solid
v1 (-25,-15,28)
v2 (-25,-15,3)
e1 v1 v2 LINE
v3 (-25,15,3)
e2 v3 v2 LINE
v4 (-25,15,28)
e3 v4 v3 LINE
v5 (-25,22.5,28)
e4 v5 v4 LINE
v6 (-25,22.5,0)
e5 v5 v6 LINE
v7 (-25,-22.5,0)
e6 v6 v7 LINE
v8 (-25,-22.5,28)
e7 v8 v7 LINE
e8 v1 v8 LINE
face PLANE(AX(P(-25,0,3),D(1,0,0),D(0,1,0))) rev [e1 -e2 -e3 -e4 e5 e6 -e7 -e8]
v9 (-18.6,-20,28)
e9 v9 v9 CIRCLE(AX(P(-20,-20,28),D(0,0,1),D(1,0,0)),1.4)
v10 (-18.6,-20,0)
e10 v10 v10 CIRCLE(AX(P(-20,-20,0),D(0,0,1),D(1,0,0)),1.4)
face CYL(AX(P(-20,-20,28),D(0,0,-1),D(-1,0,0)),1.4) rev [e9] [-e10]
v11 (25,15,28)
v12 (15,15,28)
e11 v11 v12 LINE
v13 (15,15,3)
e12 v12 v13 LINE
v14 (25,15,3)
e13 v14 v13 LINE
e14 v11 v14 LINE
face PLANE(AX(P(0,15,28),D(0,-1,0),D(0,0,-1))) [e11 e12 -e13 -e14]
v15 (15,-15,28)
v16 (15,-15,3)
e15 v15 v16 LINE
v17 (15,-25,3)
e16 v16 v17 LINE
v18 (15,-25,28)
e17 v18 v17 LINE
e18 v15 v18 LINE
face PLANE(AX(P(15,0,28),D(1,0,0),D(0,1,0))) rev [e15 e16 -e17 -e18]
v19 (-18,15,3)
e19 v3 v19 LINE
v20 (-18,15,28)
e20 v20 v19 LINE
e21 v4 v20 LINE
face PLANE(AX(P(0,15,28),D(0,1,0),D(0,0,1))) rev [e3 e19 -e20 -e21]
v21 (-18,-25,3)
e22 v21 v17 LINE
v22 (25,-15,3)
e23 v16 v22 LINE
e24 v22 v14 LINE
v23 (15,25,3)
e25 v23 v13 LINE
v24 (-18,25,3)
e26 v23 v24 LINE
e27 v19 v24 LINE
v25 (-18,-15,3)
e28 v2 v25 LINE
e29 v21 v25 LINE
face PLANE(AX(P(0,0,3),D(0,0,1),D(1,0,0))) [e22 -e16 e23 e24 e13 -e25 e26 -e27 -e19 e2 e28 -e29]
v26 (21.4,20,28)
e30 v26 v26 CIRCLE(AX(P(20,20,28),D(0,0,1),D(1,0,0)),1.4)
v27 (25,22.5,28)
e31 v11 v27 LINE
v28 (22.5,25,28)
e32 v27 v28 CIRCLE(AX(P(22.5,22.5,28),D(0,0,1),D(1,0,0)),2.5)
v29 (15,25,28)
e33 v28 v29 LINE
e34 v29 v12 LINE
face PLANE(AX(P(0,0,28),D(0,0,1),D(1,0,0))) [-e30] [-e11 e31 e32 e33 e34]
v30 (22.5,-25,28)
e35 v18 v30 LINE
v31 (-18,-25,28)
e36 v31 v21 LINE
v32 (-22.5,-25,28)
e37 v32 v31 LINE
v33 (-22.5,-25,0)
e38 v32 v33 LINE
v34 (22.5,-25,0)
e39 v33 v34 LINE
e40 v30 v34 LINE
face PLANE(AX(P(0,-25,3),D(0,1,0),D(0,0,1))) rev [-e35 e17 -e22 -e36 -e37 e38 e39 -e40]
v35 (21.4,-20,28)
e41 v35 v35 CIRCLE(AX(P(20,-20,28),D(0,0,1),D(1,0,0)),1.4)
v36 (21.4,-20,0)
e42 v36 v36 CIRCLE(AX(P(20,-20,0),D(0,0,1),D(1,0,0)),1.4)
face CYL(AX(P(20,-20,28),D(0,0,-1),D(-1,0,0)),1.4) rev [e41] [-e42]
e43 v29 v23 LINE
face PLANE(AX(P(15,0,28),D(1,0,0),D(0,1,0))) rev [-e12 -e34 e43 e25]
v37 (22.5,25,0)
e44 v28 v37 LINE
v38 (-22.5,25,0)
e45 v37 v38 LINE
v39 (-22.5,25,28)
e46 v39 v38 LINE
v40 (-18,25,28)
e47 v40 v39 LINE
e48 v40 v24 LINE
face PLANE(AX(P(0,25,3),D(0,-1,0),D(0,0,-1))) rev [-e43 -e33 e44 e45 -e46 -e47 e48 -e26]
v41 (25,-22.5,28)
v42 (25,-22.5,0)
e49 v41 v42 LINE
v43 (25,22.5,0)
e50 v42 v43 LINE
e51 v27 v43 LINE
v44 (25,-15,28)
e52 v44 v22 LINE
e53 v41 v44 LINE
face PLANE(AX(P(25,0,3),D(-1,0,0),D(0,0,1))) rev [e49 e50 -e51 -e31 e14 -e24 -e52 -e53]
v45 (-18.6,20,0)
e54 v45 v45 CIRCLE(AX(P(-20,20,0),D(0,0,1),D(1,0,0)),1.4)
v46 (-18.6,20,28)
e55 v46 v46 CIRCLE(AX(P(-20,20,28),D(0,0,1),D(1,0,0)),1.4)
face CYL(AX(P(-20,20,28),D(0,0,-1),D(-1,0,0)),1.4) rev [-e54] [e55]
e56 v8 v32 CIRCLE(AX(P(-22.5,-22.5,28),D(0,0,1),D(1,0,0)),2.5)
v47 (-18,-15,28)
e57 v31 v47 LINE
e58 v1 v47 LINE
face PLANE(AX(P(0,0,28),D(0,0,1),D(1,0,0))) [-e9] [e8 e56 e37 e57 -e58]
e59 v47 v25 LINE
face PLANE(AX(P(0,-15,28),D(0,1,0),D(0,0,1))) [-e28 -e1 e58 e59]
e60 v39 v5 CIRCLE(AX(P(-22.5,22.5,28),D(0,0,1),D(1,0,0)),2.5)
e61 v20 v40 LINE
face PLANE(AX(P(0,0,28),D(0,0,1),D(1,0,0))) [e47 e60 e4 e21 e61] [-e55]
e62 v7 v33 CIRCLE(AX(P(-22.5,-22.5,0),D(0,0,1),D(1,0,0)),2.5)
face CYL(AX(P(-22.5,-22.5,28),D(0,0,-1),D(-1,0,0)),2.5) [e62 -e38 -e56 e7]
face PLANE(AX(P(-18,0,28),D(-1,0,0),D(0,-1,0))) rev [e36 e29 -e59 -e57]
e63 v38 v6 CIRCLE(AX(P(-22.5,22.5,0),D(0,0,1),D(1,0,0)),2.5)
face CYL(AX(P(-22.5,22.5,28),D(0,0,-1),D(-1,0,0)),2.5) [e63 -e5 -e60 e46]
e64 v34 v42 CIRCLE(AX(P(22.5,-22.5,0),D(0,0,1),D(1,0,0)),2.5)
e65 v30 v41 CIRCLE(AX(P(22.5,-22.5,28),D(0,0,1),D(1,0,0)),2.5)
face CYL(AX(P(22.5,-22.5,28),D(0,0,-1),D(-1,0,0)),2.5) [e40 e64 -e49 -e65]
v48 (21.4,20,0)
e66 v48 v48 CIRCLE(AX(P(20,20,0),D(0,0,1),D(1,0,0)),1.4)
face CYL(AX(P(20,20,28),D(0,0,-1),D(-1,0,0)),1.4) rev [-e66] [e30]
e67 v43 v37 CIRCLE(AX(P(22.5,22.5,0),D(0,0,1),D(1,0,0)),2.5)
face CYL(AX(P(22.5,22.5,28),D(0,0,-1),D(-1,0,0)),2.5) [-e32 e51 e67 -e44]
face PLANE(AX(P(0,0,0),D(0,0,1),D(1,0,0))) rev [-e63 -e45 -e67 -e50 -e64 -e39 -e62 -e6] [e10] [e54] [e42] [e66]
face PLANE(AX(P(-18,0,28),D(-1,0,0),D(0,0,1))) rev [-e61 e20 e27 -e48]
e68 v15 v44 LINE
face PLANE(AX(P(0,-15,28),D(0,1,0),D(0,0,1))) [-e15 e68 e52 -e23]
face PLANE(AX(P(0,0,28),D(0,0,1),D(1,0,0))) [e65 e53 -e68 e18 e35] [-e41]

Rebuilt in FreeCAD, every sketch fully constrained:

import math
import FreeCAD as App
import Part
import Sketcher
Q = App.Units.Quantity

doc = App.newDocument("Part")
params = doc.addObject("Spreadsheet::Sheet", "Params")
for row, (alias, value) in enumerate([
    ("sketch1_width", "7 mm"),
    ("sketch1_width2", "33 mm"),
    ("sketch1_width3", "10 mm"),
    ("sketch1_height", "24 mm"),
    ("sketch1_height2", "6 mm"),
    ("pad1_length", "3 mm"),
    ("sketch2_diameter", "2.8 mm"),
    ("sketch2_radius", "2.5 mm"),
    ("sketch2_width", "7 mm"),
    ("sketch2_width2", "10 mm"),
    ("pad2_length", "28 mm"),
], start=1):
    params.set(f"A{row}", alias)
    params.set(f"B{row}", "=" + value)
    params.setAlias(f"B{row}", alias)

body = doc.addObject("PartDesign::Body", "Body")

# Sketch on XY plane
sketch1 = body.newObject("Sketcher::SketchObject", "Sketch")
sketch1.AttachmentSupport = (doc.getObject("XY_Plane"), [""])
sketch1.MapMode = "FlatFace"
sketch1.addGeometry(Part.LineSegment(App.Vector(-25, 15, 0), App.Vector(-25, -9, 0)), False)
sketch1.addGeometry(Part.LineSegment(App.Vector(-25, -9, 0), App.Vector(-25, -15, 0)), False)
sketch1.addGeometry(Part.LineSegment(App.Vector(-25, -15, 0), App.Vector(-18, -15, 0)), False)
sketch1.addGeometry(Part.LineSegment(App.Vector(-18, -15, 0), App.Vector(-18, -25, 0)), False)
sketch1.addGeometry(Part.LineSegment(App.Vector(-18, -25, 0), App.Vector(15, -25, 0)), False)
sketch1.addGeometry(Part.LineSegment(App.Vector(15, -25, 0), App.Vector(15, -15, 0)), False)
sketch1.addGeometry(Part.LineSegment(App.Vector(15, -15, 0), App.Vector(25, -15, 0)), False)
sketch1.addGeometry(Part.LineSegment(App.Vector(25, -15, 0), App.Vector(25, -9, 0)), False)
sketch1.addGeometry(Part.LineSegment(App.Vector(25, -9, 0), App.Vector(25, 9, 0)), False)
sketch1.addGeometry(Part.LineSegment(App.Vector(25, 9, 0), App.Vector(25, 15, 0)), False)
sketch1.addGeometry(Part.LineSegment(App.Vector(25, 15, 0), App.Vector(15, 15, 0)), False)
sketch1.addGeometry(Part.LineSegment(App.Vector(15, 15, 0), App.Vector(15, 25, 0)), False)
sketch1.addGeometry(Part.LineSegment(App.Vector(15, 25, 0), App.Vector(-18, 25, 0)), False)
sketch1.addGeometry(Part.LineSegment(App.Vector(-18, 25, 0), App.Vector(-18, 15, 0)), False)
sketch1.addGeometry(Part.LineSegment(App.Vector(-18, 15, 0), App.Vector(-25, 15, 0)), False)
sketch1.addConstraint(Sketcher.Constraint("Coincident", 0, 2, 1, 1))
sketch1.addConstraint(Sketcher.Constraint("Coincident", 1, 2, 2, 1))
sketch1.addConstraint(Sketcher.Constraint("Coincident", 2, 2, 3, 1))
sketch1.addConstraint(Sketcher.Constraint("Coincident", 3, 2, 4, 1))
sketch1.addConstraint(Sketcher.Constraint("Coincident", 4, 2, 5, 1))
sketch1.addConstraint(Sketcher.Constraint("Coincident", 5, 2, 6, 1))
sketch1.addConstraint(Sketcher.Constraint("Coincident", 6, 2, 7, 1))
sketch1.addConstraint(Sketcher.Constraint("Coincident", 7, 2, 8, 1))
sketch1.addConstraint(Sketcher.Constraint("Coincident", 8, 2, 9, 1))
sketch1.addConstraint(Sketcher.Constraint("Coincident", 9, 2, 10, 1))
sketch1.addConstraint(Sketcher.Constraint("Coincident", 10, 2, 11, 1))
sketch1.addConstraint(Sketcher.Constraint("Coincident", 11, 2, 12, 1))
sketch1.addConstraint(Sketcher.Constraint("Coincident", 12, 2, 13, 1))
sketch1.addConstraint(Sketcher.Constraint("Coincident", 13, 2, 14, 1))
sketch1.addConstraint(Sketcher.Constraint("Coincident", 14, 2, 0, 1))
sketch1.addConstraint(Sketcher.Constraint("Vertical", 0))
sketch1.addConstraint(Sketcher.Constraint("Vertical", 1))
sketch1.addConstraint(Sketcher.Constraint("Horizontal", 2))
sketch1.addConstraint(Sketcher.Constraint("Vertical", 3))
sketch1.addConstraint(Sketcher.Constraint("Horizontal", 4))
sketch1.addConstraint(Sketcher.Constraint("Vertical", 5))
sketch1.addConstraint(Sketcher.Constraint("Horizontal", 6))
sketch1.addConstraint(Sketcher.Constraint("Vertical", 7))
sketch1.addConstraint(Sketcher.Constraint("Vertical", 8))
sketch1.addConstraint(Sketcher.Constraint("Vertical", 9))
sketch1.addConstraint(Sketcher.Constraint("Horizontal", 10))
sketch1.addConstraint(Sketcher.Constraint("Vertical", 11))
sketch1.addConstraint(Sketcher.Constraint("Horizontal", 12))
sketch1.addConstraint(Sketcher.Constraint("Vertical", 13))
sketch1.addConstraint(Sketcher.Constraint("Horizontal", 14))
sketch1.addConstraint(Sketcher.Constraint("Symmetric", 0, 2, 8, 2, -1, 1))
sketch1.addConstraint(Sketcher.Constraint("Symmetric", 5, 2, 10, 2, -1))
sketch1.addConstraint(Sketcher.Constraint("Symmetric", 3, 2, 12, 2, -1))
sketch1.addConstraint(Sketcher.Constraint("Horizontal", 2, 2, 5, 2))
sketch1.addConstraint(Sketcher.Constraint("Horizontal", 0, 2, 7, 2))
sketch1.addConstraint(Sketcher.Constraint("Horizontal", 10, 2, 13, 2))
sketch1.addConstraint(Sketcher.Constraint("Equal", 10, 3))
sketch1.addConstraint(Sketcher.Constraint("DistanceX", 2, 1, 2, 2, Q("7 mm")))
sketch1.addConstraint(Sketcher.Constraint("DistanceX", 4, 1, 4, 2, Q("33 mm")))
sketch1.addConstraint(Sketcher.Constraint("DistanceX", 6, 1, 6, 2, Q("10 mm")))
sketch1.addConstraint(Sketcher.Constraint("DistanceY", 0, 2, 0, 1, Q("24 mm")))
sketch1.addConstraint(Sketcher.Constraint("DistanceY", 1, 2, 1, 1, Q("6 mm")))
sketch1.setExpression("Constraints[37]", "Params.sketch1_width")
sketch1.setExpression("Constraints[38]", "Params.sketch1_width2")
sketch1.setExpression("Constraints[39]", "Params.sketch1_width3")
sketch1.setExpression("Constraints[40]", "Params.sketch1_height")
sketch1.setExpression("Constraints[41]", "Params.sketch1_height2")
pad1 = body.newObject("PartDesign::Pad", "Pad")
pad1.Profile = sketch1
pad1.setExpression("Length", "Params.pad1_length")

# Sketch on XY plane
sketch2 = body.newObject("Sketcher::SketchObject", "Sketch001")
sketch2.AttachmentSupport = (doc.getObject("XY_Plane"), [""])
sketch2.MapMode = "FlatFace"
sketch2.addGeometry(Part.LineSegment(App.Vector(-18, 25, 0), App.Vector(-22.5, 25, 0)), False)
sketch2.addGeometry(Part.ArcOfCircle(Part.Circle(App.Vector(-22.5, 22.5, 0), App.Vector(0, 0, 1), 2.5), math.radians(90), math.radians(180)), False)
sketch2.addGeometry(Part.LineSegment(App.Vector(-25, 22.5, 0), App.Vector(-25, 15, 0)), False)
sketch2.addGeometry(Part.LineSegment(App.Vector(-25, 15, 0), App.Vector(-18, 15, 0)), False)
sketch2.addGeometry(Part.LineSegment(App.Vector(-18, 15, 0), App.Vector(-18, 25, 0)), False)
sketch2.addGeometry(Part.Circle(App.Vector(-20, 20, 0), App.Vector(0, 0, 1), 1.4), False)
sketch2.addGeometry(Part.LineSegment(App.Vector(-25, -15, 0), App.Vector(-25, -22.5, 0)), False)
sketch2.addGeometry(Part.ArcOfCircle(Part.Circle(App.Vector(-22.5, -22.5, 0), App.Vector(0, 0, 1), 2.5), math.radians(-180), math.radians(-90)), False)
sketch2.addGeometry(Part.LineSegment(App.Vector(-22.5, -25, 0), App.Vector(-18, -25, 0)), False)
sketch2.addGeometry(Part.LineSegment(App.Vector(-18, -25, 0), App.Vector(-18, -15, 0)), False)
sketch2.addGeometry(Part.LineSegment(App.Vector(-18, -15, 0), App.Vector(-25, -15, 0)), False)
sketch2.addGeometry(Part.Circle(App.Vector(-20, -20, 0), App.Vector(0, 0, 1), 1.4), False)
sketch2.addGeometry(Part.LineSegment(App.Vector(25, 15, 0), App.Vector(25, 22.5, 0)), False)
sketch2.addGeometry(Part.ArcOfCircle(Part.Circle(App.Vector(22.5, 22.5, 0), App.Vector(0, 0, 1), 2.5), math.radians(0), math.radians(90)), False)
sketch2.addGeometry(Part.LineSegment(App.Vector(22.5, 25, 0), App.Vector(15, 25, 0)), False)
sketch2.addGeometry(Part.LineSegment(App.Vector(15, 25, 0), App.Vector(15, 15, 0)), False)
sketch2.addGeometry(Part.LineSegment(App.Vector(15, 15, 0), App.Vector(25, 15, 0)), False)
sketch2.addGeometry(Part.Circle(App.Vector(20, 20, 0), App.Vector(0, 0, 1), 1.4), False)
sketch2.addGeometry(Part.LineSegment(App.Vector(15, -25, 0), App.Vector(22.5, -25, 0)), False)
sketch2.addGeometry(Part.ArcOfCircle(Part.Circle(App.Vector(22.5, -22.5, 0), App.Vector(0, 0, 1), 2.5), math.radians(-90), math.radians(0)), False)
sketch2.addGeometry(Part.LineSegment(App.Vector(25, -22.5, 0), App.Vector(25, -15, 0)), False)
sketch2.addGeometry(Part.LineSegment(App.Vector(25, -15, 0), App.Vector(15, -15, 0)), False)
sketch2.addGeometry(Part.LineSegment(App.Vector(15, -15, 0), App.Vector(15, -25, 0)), False)
sketch2.addGeometry(Part.Circle(App.Vector(20, -20, 0), App.Vector(0, 0, 1), 1.4), False)
sketch2.addConstraint(Sketcher.Constraint("Tangent", 0, 2, 1, 1))
sketch2.addConstraint(Sketcher.Constraint("Tangent", 1, 2, 2, 1))
sketch2.addConstraint(Sketcher.Constraint("Coincident", 2, 2, 3, 1))
sketch2.addConstraint(Sketcher.Constraint("Coincident", 3, 2, 4, 1))
sketch2.addConstraint(Sketcher.Constraint("Coincident", 4, 2, 0, 1))
sketch2.addConstraint(Sketcher.Constraint("Tangent", 6, 2, 7, 1))
sketch2.addConstraint(Sketcher.Constraint("Tangent", 7, 2, 8, 1))
sketch2.addConstraint(Sketcher.Constraint("Coincident", 8, 2, 9, 1))
sketch2.addConstraint(Sketcher.Constraint("Coincident", 9, 2, 10, 1))
sketch2.addConstraint(Sketcher.Constraint("Coincident", 10, 2, 6, 1))
sketch2.addConstraint(Sketcher.Constraint("Tangent", 12, 2, 13, 1))
sketch2.addConstraint(Sketcher.Constraint("Tangent", 13, 2, 14, 1))
sketch2.addConstraint(Sketcher.Constraint("Coincident", 14, 2, 15, 1))
sketch2.addConstraint(Sketcher.Constraint("Coincident", 15, 2, 16, 1))
sketch2.addConstraint(Sketcher.Constraint("Coincident", 16, 2, 12, 1))
sketch2.addConstraint(Sketcher.Constraint("Tangent", 18, 2, 19, 1))
sketch2.addConstraint(Sketcher.Constraint("Tangent", 19, 2, 20, 1))
sketch2.addConstraint(Sketcher.Constraint("Coincident", 20, 2, 21, 1))
sketch2.addConstraint(Sketcher.Constraint("Coincident", 21, 2, 22, 1))
sketch2.addConstraint(Sketcher.Constraint("Coincident", 22, 2, 18, 1))
sketch2.addConstraint(Sketcher.Constraint("Horizontal", 0))
sketch2.addConstraint(Sketcher.Constraint("Vertical", 2))
sketch2.addConstraint(Sketcher.Constraint("Horizontal", 3))
sketch2.addConstraint(Sketcher.Constraint("Vertical", 4))
sketch2.addConstraint(Sketcher.Constraint("Vertical", 6))
sketch2.addConstraint(Sketcher.Constraint("Horizontal", 8))
sketch2.addConstraint(Sketcher.Constraint("Vertical", 9))
sketch2.addConstraint(Sketcher.Constraint("Horizontal", 10))
sketch2.addConstraint(Sketcher.Constraint("Vertical", 12))
sketch2.addConstraint(Sketcher.Constraint("Horizontal", 14))
sketch2.addConstraint(Sketcher.Constraint("Vertical", 15))
sketch2.addConstraint(Sketcher.Constraint("Horizontal", 16))
sketch2.addConstraint(Sketcher.Constraint("Horizontal", 18))
sketch2.addConstraint(Sketcher.Constraint("Vertical", 20))
sketch2.addConstraint(Sketcher.Constraint("Horizontal", 21))
sketch2.addConstraint(Sketcher.Constraint("Vertical", 22))
sketch2.addConstraint(Sketcher.Constraint("Equal", 1, 7))
sketch2.addConstraint(Sketcher.Constraint("Equal", 5, 11))
sketch2.addConstraint(Sketcher.Constraint("Equal", 7, 13))
sketch2.addConstraint(Sketcher.Constraint("Equal", 11, 17))
sketch2.addConstraint(Sketcher.Constraint("Equal", 13, 19))
sketch2.addConstraint(Sketcher.Constraint("Equal", 17, 23))
sketch2.addConstraint(Sketcher.Constraint("Symmetric", 7, 3, 13, 3, -1, 1))
sketch2.addConstraint(Sketcher.Constraint("Symmetric", 11, 3, 17, 3, -1, 1))
sketch2.addConstraint(Sketcher.Constraint("Symmetric", 1, 3, 19, 3, -1, 1))
sketch2.addConstraint(Sketcher.Constraint("Symmetric", 5, 3, 23, 3, -1, 1))
sketch2.addConstraint(Sketcher.Constraint("Symmetric", 1, 3, 13, 3, -2))
sketch2.addConstraint(Sketcher.Constraint("Symmetric", 5, 3, 17, 3, -2))
sketch2.addConstraint(Sketcher.Constraint("Symmetric", 3, 2, 9, 2, -1))
sketch2.addConstraint(Sketcher.Constraint("Symmetric", 15, 2, 21, 2, -1))
sketch2.addConstraint(Sketcher.Constraint("Horizontal", 3, 2, 15, 2))
sketch2.addConstraint(Sketcher.Constraint("Equal", 18, 2))
sketch2.addConstraint(Sketcher.Constraint("Diameter", 5, Q("2.8 mm")))
sketch2.addConstraint(Sketcher.Constraint("Radius", 1, Q("2.5 mm")))
sketch2.addConstraint(Sketcher.Constraint("DistanceX", 3, 1, 3, 2, Q("7 mm")))
sketch2.addConstraint(Sketcher.Constraint("DistanceX", 16, 1, 16, 2, Q("10 mm")))
sketch2.addConstraint(Sketcher.Constraint("DistanceX", 5, 3, -1, 1, Q("20 mm")))
sketch2.addConstraint(Sketcher.Constraint("DistanceY", -1, 1, 5, 3, Q("20 mm")))
sketch2.addConstraint(Sketcher.Constraint("DistanceY", -1, 1, 0, 2, Q("25 mm")))
sketch2.addConstraint(Sketcher.Constraint("DistanceX", 1, 2, -1, 1, Q("25 mm")))
sketch2.setExpression("Constraints[52]", "Params.sketch2_diameter")
sketch2.setExpression("Constraints[53]", "Params.sketch2_radius")
sketch2.setExpression("Constraints[54]", "Params.sketch2_width")
sketch2.setExpression("Constraints[55]", "Params.sketch2_width2")
pad2 = body.newObject("PartDesign::Pad", "Pad001")
pad2.Profile = sketch2
pad2.setExpression("Length", "Params.pad2_length")

doc.recompute()
